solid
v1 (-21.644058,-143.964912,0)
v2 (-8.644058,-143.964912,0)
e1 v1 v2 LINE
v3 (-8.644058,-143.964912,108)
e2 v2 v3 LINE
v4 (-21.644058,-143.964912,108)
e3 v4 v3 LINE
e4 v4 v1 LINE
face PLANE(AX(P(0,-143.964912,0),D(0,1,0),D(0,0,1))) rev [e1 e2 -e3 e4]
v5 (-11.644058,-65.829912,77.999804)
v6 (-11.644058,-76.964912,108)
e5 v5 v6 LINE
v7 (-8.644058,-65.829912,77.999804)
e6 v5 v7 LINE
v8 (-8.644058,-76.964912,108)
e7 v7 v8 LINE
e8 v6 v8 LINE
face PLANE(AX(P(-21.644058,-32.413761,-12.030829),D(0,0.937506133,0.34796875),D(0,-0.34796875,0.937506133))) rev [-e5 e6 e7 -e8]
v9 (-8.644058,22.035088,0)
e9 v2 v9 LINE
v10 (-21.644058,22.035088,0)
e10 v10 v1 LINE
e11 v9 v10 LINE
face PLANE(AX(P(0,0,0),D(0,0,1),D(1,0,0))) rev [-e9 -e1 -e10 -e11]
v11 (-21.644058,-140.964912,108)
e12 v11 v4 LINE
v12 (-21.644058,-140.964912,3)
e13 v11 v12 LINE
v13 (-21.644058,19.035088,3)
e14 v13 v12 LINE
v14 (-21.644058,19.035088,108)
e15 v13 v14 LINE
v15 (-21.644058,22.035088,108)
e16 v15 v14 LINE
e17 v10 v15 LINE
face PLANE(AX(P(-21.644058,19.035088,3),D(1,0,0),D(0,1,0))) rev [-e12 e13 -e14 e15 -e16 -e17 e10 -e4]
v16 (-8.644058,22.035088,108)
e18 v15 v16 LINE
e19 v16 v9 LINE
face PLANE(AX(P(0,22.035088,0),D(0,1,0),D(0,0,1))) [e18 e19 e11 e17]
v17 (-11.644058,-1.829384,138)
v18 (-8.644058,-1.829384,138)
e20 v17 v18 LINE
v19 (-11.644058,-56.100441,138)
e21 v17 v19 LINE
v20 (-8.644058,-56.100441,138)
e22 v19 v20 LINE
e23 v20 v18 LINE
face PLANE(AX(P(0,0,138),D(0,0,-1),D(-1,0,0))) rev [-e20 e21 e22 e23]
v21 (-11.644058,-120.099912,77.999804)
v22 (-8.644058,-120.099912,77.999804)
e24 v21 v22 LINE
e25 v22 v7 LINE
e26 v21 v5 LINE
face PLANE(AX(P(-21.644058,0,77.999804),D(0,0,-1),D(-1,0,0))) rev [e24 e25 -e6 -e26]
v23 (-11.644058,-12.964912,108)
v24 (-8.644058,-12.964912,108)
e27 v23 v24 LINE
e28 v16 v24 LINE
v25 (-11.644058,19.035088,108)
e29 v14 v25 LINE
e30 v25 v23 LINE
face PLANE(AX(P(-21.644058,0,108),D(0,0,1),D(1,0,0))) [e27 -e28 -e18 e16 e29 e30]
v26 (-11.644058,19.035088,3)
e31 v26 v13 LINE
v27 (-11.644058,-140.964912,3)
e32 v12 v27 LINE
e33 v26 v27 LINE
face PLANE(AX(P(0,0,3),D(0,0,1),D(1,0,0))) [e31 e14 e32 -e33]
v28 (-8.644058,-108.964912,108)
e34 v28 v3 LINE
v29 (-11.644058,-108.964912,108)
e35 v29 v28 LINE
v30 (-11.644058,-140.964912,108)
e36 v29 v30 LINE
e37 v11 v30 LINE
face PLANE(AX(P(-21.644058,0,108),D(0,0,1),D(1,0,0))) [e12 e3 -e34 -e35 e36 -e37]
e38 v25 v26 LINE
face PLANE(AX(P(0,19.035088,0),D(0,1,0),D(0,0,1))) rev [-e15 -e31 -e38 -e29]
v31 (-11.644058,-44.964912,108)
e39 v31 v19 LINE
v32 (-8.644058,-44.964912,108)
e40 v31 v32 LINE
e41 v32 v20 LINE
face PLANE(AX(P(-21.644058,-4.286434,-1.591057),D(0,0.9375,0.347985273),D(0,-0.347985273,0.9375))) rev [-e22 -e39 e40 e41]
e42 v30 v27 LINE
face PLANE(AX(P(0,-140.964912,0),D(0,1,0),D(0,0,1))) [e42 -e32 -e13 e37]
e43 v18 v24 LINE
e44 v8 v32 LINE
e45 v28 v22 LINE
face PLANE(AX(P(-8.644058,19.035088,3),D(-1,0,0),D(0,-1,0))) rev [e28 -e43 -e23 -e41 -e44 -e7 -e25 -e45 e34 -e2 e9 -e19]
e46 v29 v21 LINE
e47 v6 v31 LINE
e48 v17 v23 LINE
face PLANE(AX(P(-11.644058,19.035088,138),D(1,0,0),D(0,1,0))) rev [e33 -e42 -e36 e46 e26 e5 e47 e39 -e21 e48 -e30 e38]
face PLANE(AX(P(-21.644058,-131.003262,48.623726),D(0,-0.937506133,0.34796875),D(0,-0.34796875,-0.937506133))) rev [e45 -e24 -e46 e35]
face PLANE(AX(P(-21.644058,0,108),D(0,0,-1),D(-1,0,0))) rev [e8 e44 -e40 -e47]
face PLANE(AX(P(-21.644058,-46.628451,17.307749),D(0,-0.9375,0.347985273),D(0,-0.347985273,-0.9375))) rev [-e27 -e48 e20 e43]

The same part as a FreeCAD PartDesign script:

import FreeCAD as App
import Part
import Sketcher

V = App.Vector

doc = App.newDocument("Part")
body = doc.addObject("PartDesign::Body", "Body")

sketch1 = body.newObject("Sketcher::SketchObject", "Sketch")
sketch1.AttachmentSupport = (doc.getObject("XY_Plane"), [""])
sketch1.MapMode = "FlatFace"
sketch1.addGeometry(Part.LineSegment(V(-21.644058, 19.035088, 0), V(-21.644058, -140.964912, 0)), False)
sketch1.addGeometry(Part.LineSegment(V(-21.644058, -140.964912, 0), V(-8.644058, -140.964912, 0)), False)
sketch1.addGeometry(Part.LineSegment(V(-8.644058, -140.964912, 0), V(-8.644058, 19.035088, 0)), False)
sketch1.addGeometry(Part.LineSegment(V(-8.644058, 19.035088, 0), V(-21.644058, 19.035088, 0)), False)
sketch1.addConstraint(Sketcher.Constraint("Coincident", 0, 2, 1, 1))
sketch1.addConstraint(Sketcher.Constraint("Coincident", 1, 2, 2, 1))
sketch1.addConstraint(Sketcher.Constraint("Coincident", 2, 2, 3, 1))
sketch1.addConstraint(Sketcher.Constraint("Coincident", 3, 2, 0, 1))
sketch1.addConstraint(Sketcher.Constraint("Vertical", 0))
sketch1.addConstraint(Sketcher.Constraint("Horizontal", 1))
sketch1.addConstraint(Sketcher.Constraint("Vertical", 2))
sketch1.addConstraint(Sketcher.Constraint("Horizontal", 3))
sketch1.addConstraint(Sketcher.Constraint("DistanceX", 1, 1, 1, 2, 13.0))
sketch1.addConstraint(Sketcher.Constraint("DistanceY", 0, 2, 0, 1, 160.0))
sketch1.addConstraint(Sketcher.Constraint("DistanceX", 0, 2, -1, 1, 21.644058))
sketch1.addConstraint(Sketcher.Constraint("DistanceY", 0, 2, -1, 1, 140.964912))
pad1 = body.newObject("PartDesign::Pad", "Pad")
pad1.Profile = sketch1
pad1.Length = 3

sketch2 = body.newObject("Sketcher::SketchObject", "Sketch001")
sketch2.AttachmentSupport = (doc.getObject("XY_Plane"), [""])
sketch2.MapMode = "FlatFace"
sketch2.AttachmentOffset = App.Placement(V(0, 0, 3), App.Rotation())
sketch2.addGeometry(Part.LineSegment(V(-11.644058, 19.035088, 0), V(-11.644058, -140.964912, 0)), False)
sketch2.addGeometry(Part.LineSegment(V(-11.644058, -140.964912, 0), V(-8.644058, -140.964912, 0)), False)
sketch2.addGeometry(Part.LineSegment(V(-8.644058, -140.964912, 0), V(-8.644058, 19.035088, 0)), False)
sketch2.addGeometry(Part.LineSegment(V(-8.644058, 19.035088, 0), V(-11.644058, 19.035088, 0)), False)
sketch2.addConstraint(Sketcher.Constraint("Coincident", 0, 2, 1, 1))
sketch2.addConstraint(Sketcher.Constraint("Coincident", 1, 2, 2, 1))
sketch2.addConstraint(Sketcher.Constraint("Coincident", 2, 2, 3, 1))
sketch2.addConstraint(Sketcher.Constraint("Coincident", 3, 2, 0, 1))
sketch2.addConstraint(Sketcher.Constraint("Vertical", 0))
sketch2.addConstraint(Sketcher.Constraint("Horizontal", 1))
sketch2.addConstraint(Sketcher.Constraint("Vertical", 2))
sketch2.addConstraint(Sketcher.Constraint("Horizontal", 3))
sketch2.addConstraint(Sketcher.Constraint("DistanceX", 1, 1, 1, 2, 3.0))
sketch2.addConstraint(Sketcher.Constraint("DistanceY", 0, 2, 0, 1, 160.0))
sketch2.addConstraint(Sketcher.Constraint("DistanceX", 0, 2, -1, 1, 11.644058))
sketch2.addConstraint(Sketcher.Constraint("DistanceY", 0, 2, -1, 1, 140.964912))
pad2 = body.newObject("PartDesign::Pad", "Pad001")
pad2.Profile = sketch2
pad2.Length = 135

sketch3 = body.newObject("Sketcher::SketchObject", "Sketch002")
sketch3.AttachmentSupport = (doc.getObject("XZ_Plane"), [""])
sketch3.MapMode = "FlatFace"
sketch3.AttachmentOffset = App.Placement(V(0, 0, 140.964912), App.Rotation())
sketch3.addGeometry(Part.LineSegment(V(-21.644058, 138, 0), V(-21.644058, 0, 0)), False)
sketch3.addGeometry(Part.LineSegment(V(-21.644058, 0, 0), V(-8.644058, 0, 0)), False)
sketch3.addGeometry(Part.LineSegment(V(-8.644058, 0, 0), V(-8.644058, 138, 0)), False)
sketch3.addGeometry(Part.LineSegment(V(-8.644058, 138, 0), V(-21.644058, 138, 0)), False)
sketch3.addConstraint(Sketcher.Constraint("Coincident", 0, 2, 1, 1))
sketch3.addConstraint(Sketcher.Constraint("Coincident", 1, 2, 2, 1))
sketch3.addConstraint(Sketcher.Constraint("Coincident", 2, 2, 3, 1))
sketch3.addConstraint(Sketcher.Constraint("Coincident", 3, 2, 0, 1))
sketch3.addConstraint(Sketcher.Constraint("Vertical", 0))
sketch3.addConstraint(Sketcher.Constraint("Horizontal", 1))
sketch3.addConstraint(Sketcher.Constraint("Vertical", 2))
sketch3.addConstraint(Sketcher.Constraint("Horizontal", 3))
sketch3.addConstraint(Sketcher.Constraint("PointOnObject", 0, 2, -1))
sketch3.addConstraint(Sketcher.Constraint("DistanceX", 1, 1, 1, 2, 13.0))
sketch3.addConstraint(Sketcher.Constraint("DistanceY", 0, 2, 0, 1, 138.0))
sketch3.addConstraint(Sketcher.Constraint("DistanceX", 0, 2, -1, 1, 21.644058))
pad3 = body.newObject("PartDesign::Pad", "Pad002")
pad3.Profile = sketch3
pad3.Length = 3

sketch4 = body.newObject("Sketcher::SketchObject", "Sketch003")
sketch4.AttachmentSupport = (doc.getObject("XZ_Plane"), [""])
sketch4.MapMode = "FlatFace"
sketch4.AttachmentOffset = App.Placement(V(0, 0, -19.035088), App.Rotation())
sketch4.addGeometry(Part.LineSegment(V(-21.644058, 0, 0), V(-21.644058, 138, 0)), False)
sketch4.addGeometry(Part.LineSegment(V(-21.644058, 138, 0), V(-8.644058, 138, 0)), False)
sketch4.addGeometry(Part.LineSegment(V(-8.644058, 138, 0), V(-8.644058, 0, 0)), False)
sketch4.addGeometry(Part.LineSegment(V(-8.644058, 0, 0), V(-21.644058, 0, 0)), False)
sketch4.addConstraint(Sketcher.Constraint("Coincident", 0, 2, 1, 1))
sketch4.addConstraint(Sketcher.Constraint("Coincident", 1, 2, 2, 1))
sketch4.addConstraint(Sketcher.Constraint("Coincident", 2, 2, 3, 1))
sketch4.addConstraint(Sketcher.Constraint("Coincident", 3, 2, 0, 1))
sketch4.addConstraint(Sketcher.Constraint("Vertical", 0))
sketch4.addConstraint(Sketcher.Constraint("Horizontal", 1))
sketch4.addConstraint(Sketcher.Constraint("Vertical", 2))
sketch4.addConstraint(Sketcher.Constraint("Horizontal", 3))
sketch4.addConstraint(Sketcher.Constraint("PointOnObject", 2, 2, -1))
sketch4.addConstraint(Sketcher.Constraint("DistanceX", 1, 1, 1, 2, 13.0))
sketch4.addConstraint(Sketcher.Constraint("DistanceY", 0, 1, 0, 2, 138.0))
sketch4.addConstraint(Sketcher.Constraint("DistanceX", 0, 2, -1, 1, 21.644058))
pad4 = body.newObject("PartDesign::Pad", "Pad003")
pad4.Profile = sketch4
pad4.Length = 3
pad4.Reversed = True

sketch5 = body.newObject("Sketcher::SketchObject", "Sketch004")
sketch5.AttachmentSupport = (doc.getObject("YZ_Plane"), [""])
sketch5.MapMode = "FlatFace"
sketch5.AttachmentOffset = App.Placement(V(0, 0, -8.644058), App.Rotation())
sketch5.addGeometry(Part.LineSegment(V(-76.964912, 108, 0), V(-44.964912, 108, 0)), False)
sketch5.addGeometry(Part.LineSegment(V(-44.964912, 108, 0), V(-56.100441, 138, 0)), False)
sketch5.addGeometry(Part.LineSegment(V(-56.100441, 138, 0), V(-143.964912, 138, 0)), False)
sketch5.addGeometry(Part.LineSegment(V(-143.964912, 138, 0), V(-143.964912, 108, 0)), False)
sketch5.addGeometry(Part.LineSegment(V(-143.964912, 108, 0), V(-108.964912, 108, 0)), False)
sketch5.addGeometry(Part.LineSegment(V(-108.964912, 108, 0), V(-120.099912, 77.999804, 0)), False)
sketch5.addGeometry(Part.LineSegment(V(-120.099912, 77.999804, 0), V(-65.829912, 77.999804, 0)), False)
sketch5.addGeometry(Part.LineSegment(V(-65.829912, 77.999804, 0), V(-76.964912, 108, 0)), False)
sketch5.addGeometry(Part.LineSegment(V(22.035088, 138, 0), V(-1.829384, 138, 0)), False)
sketch5.addGeometry(Part.LineSegment(V(-1.829384, 138, 0), V(-12.964912, 108, 0)), False)
sketch5.addGeometry(Part.LineSegment(V(-12.964912, 108, 0), V(22.035088, 108, 0)), False)
sketch5.addGeometry(Part.LineSegment(V(22.035088, 108, 0), V(22.035088, 138, 0)), False)
sketch5.addConstraint(Sketcher.Constraint("Coincident", 0, 2, 1, 1))
sketch5.addConstraint(Sketcher.Constraint("Coincident", 1, 2, 2, 1))
sketch5.addConstraint(Sketcher.Constraint("Coincident", 2, 2, 3, 1))
sketch5.addConstraint(Sketcher.Constraint("Coincident", 3, 2, 4, 1))
sketch5.addConstraint(Sketcher.Constraint("Coincident", 4, 2, 5, 1))
sketch5.addConstraint(Sketcher.Constraint("Coincident", 5, 2, 6, 1))
sketch5.addConstraint(Sketcher.Constraint("Coincident", 6, 2, 7, 1))
sketch5.addConstraint(Sketcher.Constraint("Coincident", 7, 2, 0, 1))
sketch5.addConstraint(Sketcher.Constraint("Coincident", 8, 2, 9, 1))
sketch5.addConstraint(Sketcher.Constraint("Coincident", 9, 2, 10, 1))
sketch5.addConstraint(Sketcher.Constraint("Coincident", 10, 2, 11, 1))
sketch5.addConstraint(Sketcher.Constraint("Coincident", 11, 2, 8, 1))
sketch5.addConstraint(Sketcher.Constraint("Horizontal", 0))
sketch5.addConstraint(Sketcher.Constraint("Horizontal", 2))
sketch5.addConstraint(Sketcher.Constraint("Vertical", 3))
sketch5.addConstraint(Sketcher.Constraint("Horizontal", 4))
sketch5.addConstraint(Sketcher.Constraint("Horizontal", 6))
sketch5.addConstraint(Sketcher.Constraint("Horizontal", 8))
sketch5.addConstraint(Sketcher.Constraint("Horizontal", 10))
sketch5.addConstraint(Sketcher.Constraint("Vertical", 11))
sketch5.addConstraint(Sketcher.Constraint("Horizontal", 0, 2, 3, 2))
sketch5.addConstraint(Sketcher.Constraint("Horizontal", 2, 2, 8, 2))
sketch5.addConstraint(Sketcher.Constraint("Horizontal", 7, 2, 9, 2))
sketch5.addConstraint(Sketcher.Constraint("Equal", 4, 10))
sketch5.addConstraint(Sketcher.Constraint("Equal", 1, 5))
sketch5.addConstraint(Sketcher.Constraint("Equal", 5, 7))
sketch5.addConstraint(Sketcher.Constraint("Equal", 7, 9))
sketch5.addConstraint(Sketcher.Constraint("DistanceX", 0, 1, 0, 2, 32.0))
sketch5.addConstraint(Sketcher.Constraint("DistanceX", 4, 1, 4, 2, 35.0))
sketch5.addConstraint(Sketcher.Constraint("DistanceY", 3, 2, 3, 1, 30.0))
sketch5.addConstraint(Sketcher.Constraint("Distance", 1, 32.0))
sketch5.addConstraint(Sketcher.Constraint("DistanceY", -1, 1, 0, 2, 108.0))
sketch5.addConstraint(Sketcher.Constraint("DistanceX", 2, 2, 0, 2, 99.0))
sketch5.addConstraint(Sketcher.Constraint("DistanceX", 0, 2, 9, 2, 32.0))
sketch5.addConstraint(Sketcher.Constraint("DistanceX", 6, 1, 6, 2, 54.27))
sketch5.addConstraint(Sketcher.Constraint("DistanceX", 1, 2, -1, 1, 56.100441))
pocket1 = body.newObject("PartDesign::Pocket", "Pocket")
pocket1.Profile = sketch5
pocket1.Type = "ThroughAll"

doc.recompute()
